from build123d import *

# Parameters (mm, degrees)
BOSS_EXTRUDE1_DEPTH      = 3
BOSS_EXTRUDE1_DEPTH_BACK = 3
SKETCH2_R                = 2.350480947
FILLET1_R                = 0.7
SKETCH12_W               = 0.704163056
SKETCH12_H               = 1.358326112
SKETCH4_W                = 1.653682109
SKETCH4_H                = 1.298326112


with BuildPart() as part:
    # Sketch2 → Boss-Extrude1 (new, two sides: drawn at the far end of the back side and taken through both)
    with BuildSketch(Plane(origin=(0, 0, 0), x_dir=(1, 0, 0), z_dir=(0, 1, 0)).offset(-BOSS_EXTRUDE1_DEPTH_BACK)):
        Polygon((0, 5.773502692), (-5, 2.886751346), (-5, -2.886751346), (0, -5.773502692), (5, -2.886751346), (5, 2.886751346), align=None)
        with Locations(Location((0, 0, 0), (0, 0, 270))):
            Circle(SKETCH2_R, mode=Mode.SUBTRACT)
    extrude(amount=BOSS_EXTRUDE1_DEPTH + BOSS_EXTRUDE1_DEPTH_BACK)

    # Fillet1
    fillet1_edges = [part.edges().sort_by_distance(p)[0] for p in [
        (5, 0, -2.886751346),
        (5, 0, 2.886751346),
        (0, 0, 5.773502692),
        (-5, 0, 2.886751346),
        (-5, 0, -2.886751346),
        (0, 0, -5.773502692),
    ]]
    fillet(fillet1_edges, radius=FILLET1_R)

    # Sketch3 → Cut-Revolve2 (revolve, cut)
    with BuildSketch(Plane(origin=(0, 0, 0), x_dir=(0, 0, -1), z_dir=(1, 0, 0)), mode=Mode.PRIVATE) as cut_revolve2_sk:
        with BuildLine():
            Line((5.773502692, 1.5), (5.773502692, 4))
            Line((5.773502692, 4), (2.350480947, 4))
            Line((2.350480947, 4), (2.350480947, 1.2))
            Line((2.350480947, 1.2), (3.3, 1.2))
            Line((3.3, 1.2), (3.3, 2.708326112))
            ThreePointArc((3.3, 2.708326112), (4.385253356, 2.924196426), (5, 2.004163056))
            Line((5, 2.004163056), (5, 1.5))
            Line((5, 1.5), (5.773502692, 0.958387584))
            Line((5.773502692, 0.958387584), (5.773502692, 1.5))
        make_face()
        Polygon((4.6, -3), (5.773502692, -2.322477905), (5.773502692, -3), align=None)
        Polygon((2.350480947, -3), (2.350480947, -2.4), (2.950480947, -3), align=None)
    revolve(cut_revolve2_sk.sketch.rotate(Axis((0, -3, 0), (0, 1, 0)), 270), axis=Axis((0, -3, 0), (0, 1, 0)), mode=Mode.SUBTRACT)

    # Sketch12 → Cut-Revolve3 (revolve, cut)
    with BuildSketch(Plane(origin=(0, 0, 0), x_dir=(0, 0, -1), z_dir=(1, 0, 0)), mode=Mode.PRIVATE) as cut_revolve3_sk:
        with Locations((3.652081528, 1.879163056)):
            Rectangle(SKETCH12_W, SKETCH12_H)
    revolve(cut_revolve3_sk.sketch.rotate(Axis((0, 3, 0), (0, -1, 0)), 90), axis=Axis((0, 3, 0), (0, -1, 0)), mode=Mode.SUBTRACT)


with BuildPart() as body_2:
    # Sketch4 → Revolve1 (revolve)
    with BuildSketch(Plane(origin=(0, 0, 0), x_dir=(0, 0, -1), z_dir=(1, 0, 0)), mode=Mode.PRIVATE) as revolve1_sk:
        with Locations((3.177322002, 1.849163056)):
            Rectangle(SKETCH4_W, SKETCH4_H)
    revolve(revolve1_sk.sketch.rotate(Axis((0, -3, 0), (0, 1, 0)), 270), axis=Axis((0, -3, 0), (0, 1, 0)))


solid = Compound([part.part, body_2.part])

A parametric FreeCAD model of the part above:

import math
import FreeCAD as App
import Part
import Sketcher

V = App.Vector
Q = App.Units.Quantity


def edges_at(feature, points):
    """Names of the edges that pass closest to the given points."""
    edges = feature.Shape.Edges
    near = lambda p: min(range(len(edges)), key=lambda i: edges[i].distToShape(Part.Vertex(*p))[0])
    return sorted({f"Edge{near(p) + 1}" for p in points})

doc = App.newDocument("Part")
body = doc.addObject("PartDesign::Body", "Body")

sketch1 = body.newObject("Sketcher::SketchObject", "Sketch")
sketch1.AttachmentSupport = (doc.getObject("XZ_Plane"), [""])
sketch1.MapMode = "FlatFace"
sketch1.addGeometry(Part.LineSegment(V(0, -5.773503, 0), V(-5, -2.886751, 0)), False)
sketch1.addGeometry(Part.LineSegment(V(-5, -2.886751, 0), V(-5, 2.886751, 0)), False)
sketch1.addGeometry(Part.LineSegment(V(-5, 2.886751, 0), V(0, 5.773503, 0)), False)
sketch1.addGeometry(Part.LineSegment(V(0, 5.773503, 0), V(5, 2.886751, 0)), False)
sketch1.addGeometry(Part.LineSegment(V(5, 2.886751, 0), V(5, -2.886751, 0)), False)
sketch1.addGeometry(Part.LineSegment(V(5, -2.886751, 0), V(0, -5.773503, 0)), False)
sketch1.addGeometry(Part.Circle(V(0, 0, 0), V(0, 0, 1), 2.350481), False)
sketch1.addConstraint(Sketcher.Constraint("Coincident", 0, 2, 1, 1))
sketch1.addConstraint(Sketcher.Constraint("Coincident", 1, 2, 2, 1))
sketch1.addConstraint(Sketcher.Constraint("Coincident", 2, 2, 3, 1))
sketch1.addConstraint(Sketcher.Constraint("Coincident", 3, 2, 4, 1))
sketch1.addConstraint(Sketcher.Constraint("Coincident", 4, 2, 5, 1))
sketch1.addConstraint(Sketcher.Constraint("Coincident", 5, 2, 0, 1))
sketch1.addConstraint(Sketcher.Constraint("Vertical", 1))
sketch1.addConstraint(Sketcher.Constraint("Vertical", 4))
sketch1.addConstraint(Sketcher.Constraint("Coincident", 6, 3, -1, 1))
sketch1.addConstraint(Sketcher.Constraint("Symmetric", 0, 2, 3, 2, -1, 1))
sketch1.addConstraint(Sketcher.Constraint("Symmetric", 2, 2, 5, 2, -1, 1))
sketch1.addConstraint(Sketcher.Constraint("PointOnObject", 2, 2, -2))
sketch1.addConstraint(Sketcher.Constraint("Parallel", 2, 5))
sketch1.addConstraint(Sketcher.Constraint("Horizontal", 1, 2, 3, 2))
sketch1.addConstraint(Sketcher.Constraint("Angle", 0, Q("150 deg")))
sketch1.addConstraint(Sketcher.Constraint("DistanceX", 0, 2, -1, 1, 5.0))
sketch1.addConstraint(Sketcher.Constraint("Diameter", 6, 4.700962))
sketch1.addConstraint(Sketcher.Constraint("DistanceY", 1, 1, 1, 2, 5.773503))
pad1 = body.newObject("PartDesign::Pad", "Pad")
pad1.Profile = sketch1
pad1.Type = "TwoLengths"
pad1.Length = 3
pad1.Length2 = 3
pad1.Reversed = True
doc.recompute()

fillet = body.newObject("PartDesign::Fillet", "Fillet")
fillet.Base = (pad1, edges_at(pad1, [
    (5, 0, -2.887),
    (5, 0, 2.887),
    (0, 0, 5.774),
    (-5, 0, 2.887),
    (-5, 0, -2.887),
    (0, 0, -5.774),
]))
fillet.Radius = 0.7

sketch2 = body.newObject("Sketcher::SketchObject", "Sketch001")
sketch2.AttachmentSupport = (doc.getObject("YZ_Plane"), [""])
sketch2.MapMode = "FlatFace"
sketch2.addGeometry(Part.LineSegment(V(4, -5.773503, 0), V(4, -2.350481, 0)), False)
sketch2.addGeometry(Part.LineSegment(V(4, -2.350481, 0), V(1.2, -2.350481, 0)), False)
sketch2.addGeometry(Part.LineSegment(V(1.2, -2.350481, 0), V(1.2, -3.3, 0)), False)
sketch2.addGeometry(Part.LineSegment(V(1.2, -3.3, 0), V(2.708326, -3.3, 0)), False)
sketch2.addGeometry(Part.ArcOfCircle(Part.Circle(V(2.004163, -4.004163, 0), V(0, 0, 1), 0.995837), math.radians(-90), math.radians(45)), False)
sketch2.addGeometry(Part.LineSegment(V(2.004163, -5, 0), V(1.5, -5, 0)), False)
sketch2.addGeometry(Part.LineSegment(V(1.5, -5, 0), V(0.958388, -5.773503, 0)), False)
sketch2.addGeometry(Part.LineSegment(V(0.958388, -5.773503, 0), V(4, -5.773503, 0)), False)
sketch2.addGeometry(Part.LineSegment(V(-2.322478, -5.773503, 0), V(-3, -4.6, 0)), False)
sketch2.addGeometry(Part.LineSegment(V(-3, -4.6, 0), V(-3, -5.773503, 0)), False)
sketch2.addGeometry(Part.LineSegment(V(-3, -5.773503, 0), V(-2.322478, -5.773503, 0)), False)
sketch2.addGeometry(Part.LineSegment(V(-2.4, -2.350481, 0), V(-3, -2.350481, 0)), False)
sketch2.addGeometry(Part.LineSegment(V(-3, -2.350481, 0), V(-3, -2.950481, 0)), False)
sketch2.addGeometry(Part.LineSegment(V(-3, -2.950481, 0), V(-2.4, -2.350481, 0)), False)
sketch2.addConstraint(Sketcher.Constraint("Coincident", 0, 2, 1, 1))
sketch2.addConstraint(Sketcher.Constraint("Coincident", 1, 2, 2, 1))
sketch2.addConstraint(Sketcher.Constraint("Coincident", 2, 2, 3, 1))
sketch2.addConstraint(Sketcher.Constraint("Coincident", 3, 2, 4, 2))
sketch2.addConstraint(Sketcher.Constraint("Tangent", 4, 1, 5, 1))
sketch2.addConstraint(Sketcher.Constraint("Coincident", 5, 2, 6, 1))
sketch2.addConstraint(Sketcher.Constraint("Coincident", 6, 2, 7, 1))
sketch2.addConstraint(Sketcher.Constraint("Coincident", 7, 2, 0, 1))
sketch2.addConstraint(Sketcher.Constraint("Coincident", 8, 2, 9, 1))
sketch2.addConstraint(Sketcher.Constraint("Coincident", 9, 2, 10, 1))
sketch2.addConstraint(Sketcher.Constraint("Coincident", 10, 2, 8, 1))
sketch2.addConstraint(Sketcher.Constraint("Coincident", 11, 2, 12, 1))
sketch2.addConstraint(Sketcher.Constraint("Coincident", 12, 2, 13, 1))
sketch2.addConstraint(Sketcher.Constraint("Coincident", 13, 2, 11, 1))
sketch2.addConstraint(Sketcher.Constraint("Vertical", 0))
sketch2.addConstraint(Sketcher.Constraint("Horizontal", 1))
sketch2.addConstraint(Sketcher.Constraint("Vertical", 2))
sketch2.addConstraint(Sketcher.Constraint("Horizontal", 3))
sketch2.addConstraint(Sketcher.Constraint("Horizontal", 5))
sketch2.addConstraint(Sketcher.Constraint("Horizontal", 7))
sketch2.addConstraint(Sketcher.Constraint("Vertical", 9))
sketch2.addConstraint(Sketcher.Constraint("Horizontal", 10))
sketch2.addConstraint(Sketcher.Constraint("Horizontal", 11))
sketch2.addConstraint(Sketcher.Constraint("Vertical", 12))
sketch2.addConstraint(Sketcher.Constraint("Horizontal", 7, 2, 9, 2))
sketch2.addConstraint(Sketcher.Constraint("Horizontal", 1, 2, 11, 2))
sketch2.addConstraint(Sketcher.Constraint("Vertical", 9, 2, 11, 2))
sketch2.addConstraint(Sketcher.Constraint("Equal", 11, 12))
sketch2.addConstraint(Sketcher.Constraint("Angle", 6, Q("-125 deg")))
sketch2.addConstraint(Sketcher.Constraint("Angle", 8, Q("120 deg")))
sketch2.addConstraint(Sketcher.Constraint("DistanceX", 1, 2, 1, 1, 2.8))
sketch2.addConstraint(Sketcher.Constraint("DistanceX", 11, 2, 11, 1, 0.6))
sketch2.addConstraint(Sketcher.Constraint("DistanceX", -1, 1, 0, 2, 4.0))
sketch2.addConstraint(Sketcher.Constraint("DistanceY", 4, 1, -1, 1, 5.0))
sketch2.addConstraint(Sketcher.Constraint("DistanceX", 8, 2, -1, 1, 3.0))
sketch2.addConstraint(Sketcher.Constraint("DistanceY", 2, 2, -1, 1, 3.3))
sketch2.addConstraint(Sketcher.Constraint("DistanceX", -1, 1, 5, 2, 1.5))
sketch2.addConstraint(Sketcher.Constraint("DistanceY", 8, 2, -1, 1, 4.6))
sketch2.addConstraint(Sketcher.Constraint("Radius", 4, 0.995837))
sketch2.addConstraint(Sketcher.Constraint("DistanceY", 0, 1, 0, 2, 3.423022))
sketch2.addConstraint(Sketcher.Constraint("DistanceY", 2, 2, 2, 1, 0.949519))
sketch2.addConstraint(Sketcher.Constraint("DistanceX", 3, 1, 3, 2, 1.508326))
groove = body.newObject("PartDesign::Groove", "Groove")
groove.Profile = sketch2
groove.ReferenceAxis = (sketch2, ["H_Axis"])
groove.Angle = 360

sketch3 = body.newObject("Sketcher::SketchObject", "Sketch002")
sketch3.AttachmentSupport = (doc.getObject("YZ_Plane"), [""])
sketch3.MapMode = "FlatFace"
sketch3.addGeometry(Part.LineSegment(V(2.558326, -3.3, 0), V(1.2, -3.3, 0)), False)
sketch3.addGeometry(Part.LineSegment(V(1.2, -3.3, 0), V(1.2, -4.004163, 0)), False)
sketch3.addGeometry(Part.LineSegment(V(1.2, -4.004163, 0), V(2.558326, -4.004163, 0)), False)
sketch3.addGeometry(Part.LineSegment(V(2.558326, -4.004163, 0), V(2.558326, -3.3, 0)), False)
sketch3.addConstraint(Sketcher.Constraint("Coincident", 0, 2, 1, 1))
sketch3.addConstraint(Sketcher.Constraint("Coincident", 1, 2, 2, 1))
sketch3.addConstraint(Sketcher.Constraint("Coincident", 2, 2, 3, 1))
sketch3.addConstraint(Sketcher.Constraint("Coincident", 3, 2, 0, 1))
sketch3.addConstraint(Sketcher.Constraint("Horizontal", 0))
sketch3.addConstraint(Sketcher.Constraint("Vertical", 1))
sketch3.addConstraint(Sketcher.Constraint("Horizontal", 2))
sketch3.addConstraint(Sketcher.Constraint("Vertical", 3))
sketch3.addConstraint(Sketcher.Constraint("DistanceX", -1, 1, 0, 2, 1.2))
sketch3.addConstraint(Sketcher.Constraint("DistanceY", 0, 2, -1, 1, 3.3))
sketch3.addConstraint(Sketcher.Constraint("DistanceX", 0, 2, 0, 1, 1.358326))
sketch3.addConstraint(Sketcher.Constraint("DistanceY", 1, 2, 1, 1, 0.704163))
groove2 = body.newObject("PartDesign::Groove", "Groove001")
groove2.Profile = sketch3
groove2.ReferenceAxis = (sketch3, ["H_Axis"])
groove2.Angle = 360
body2 = doc.addObject("PartDesign::Body", "Body001")

sketch4 = body2.newObject("Sketcher::SketchObject", "Sketch003")
sketch4.AttachmentSupport = (doc.getObject("YZ_Plane001"), [""])
sketch4.MapMode = "FlatFace"
sketch4.addGeometry(Part.LineSegment(V(2.498326, -2.350481, 0), V(1.2, -2.350481, 0)), False)
sketch4.addGeometry(Part.LineSegment(V(1.2, -2.350481, 0), V(1.2, -4.004163, 0)), False)
sketch4.addGeometry(Part.LineSegment(V(1.2, -4.004163, 0), V(2.498326, -4.004163, 0)), False)
sketch4.addGeometry(Part.LineSegment(V(2.498326, -4.004163, 0), V(2.498326, -2.350481, 0)), False)
sketch4.addConstraint(Sketcher.Constraint("Coincident", 0, 2, 1, 1))
sketch4.addConstraint(Sketcher.Constraint("Coincident", 1, 2, 2, 1))
sketch4.addConstraint(Sketcher.Constraint("Coincident", 2, 2, 3, 1))
sketch4.addConstraint(Sketcher.Constraint("Coincident", 3, 2, 0, 1))
sketch4.addConstraint(Sketcher.Constraint("Horizontal", 0))
sketch4.addConstraint(Sketcher.Constraint("Vertical", 1))
sketch4.addConstraint(Sketcher.Constraint("Horizontal", 2))
sketch4.addConstraint(Sketcher.Constraint("Vertical", 3))
sketch4.addConstraint(Sketcher.Constraint("DistanceX", -1, 1, 0, 2, 1.2))
sketch4.addConstraint(Sketcher.Constraint("DistanceX", 0, 2, 0, 1, 1.298326))
sketch4.addConstraint(Sketcher.Constraint("DistanceY", 1, 2, 1, 1, 1.653682))
sketch4.addConstraint(Sketcher.Constraint("DistanceY", 0, 2, -1, 1, 2.350481))
revolution = body2.newObject("PartDesign::Revolution", "Revolution")
revolution.Profile = sketch4
revolution.ReferenceAxis = (sketch4, ["H_Axis"])
revolution.Angle = 360

doc.recompute()
